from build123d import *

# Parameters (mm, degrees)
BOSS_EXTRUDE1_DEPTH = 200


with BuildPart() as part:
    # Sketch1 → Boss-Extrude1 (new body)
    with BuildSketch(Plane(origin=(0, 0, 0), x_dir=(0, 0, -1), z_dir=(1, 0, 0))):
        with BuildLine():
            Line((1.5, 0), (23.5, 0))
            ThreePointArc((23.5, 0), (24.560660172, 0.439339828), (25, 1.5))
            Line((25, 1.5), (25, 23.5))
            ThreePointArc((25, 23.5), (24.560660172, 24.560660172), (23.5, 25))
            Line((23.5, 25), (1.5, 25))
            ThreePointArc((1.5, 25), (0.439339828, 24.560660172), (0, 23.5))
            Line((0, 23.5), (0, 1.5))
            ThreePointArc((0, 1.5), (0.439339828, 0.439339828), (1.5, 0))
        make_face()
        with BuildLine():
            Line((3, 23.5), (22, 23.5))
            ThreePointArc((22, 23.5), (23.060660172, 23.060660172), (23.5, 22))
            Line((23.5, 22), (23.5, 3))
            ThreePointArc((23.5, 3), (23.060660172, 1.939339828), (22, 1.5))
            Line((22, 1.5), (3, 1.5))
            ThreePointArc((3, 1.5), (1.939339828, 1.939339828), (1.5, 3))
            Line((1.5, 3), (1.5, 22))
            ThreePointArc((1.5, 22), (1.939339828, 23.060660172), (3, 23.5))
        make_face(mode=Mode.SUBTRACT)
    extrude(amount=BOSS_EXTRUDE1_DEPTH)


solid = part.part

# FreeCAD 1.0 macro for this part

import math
import FreeCAD as App
import Part
import Sketcher

V = App.Vector

doc = App.newDocument("Part")
params = doc.addObject("Spreadsheet::Sheet", "Params")
for row, (alias, value) in enumerate([
    ("sketch1_radius", "1.5 mm"),
    ("sketch1_width", "22 mm"),
    ("pad1_length", "200 mm"),
], start=1):
    params.set(f"A{row}", alias)
    params.set(f"B{row}", "=" + value)
    params.setAlias(f"B{row}", alias)

body = doc.addObject("PartDesign::Body", "Body")

# Sketch on YZ plane
sketch1 = doc.addObject("Sketcher::SketchObject", "Sketch")
body.addObject(sketch1)
sketch1.AttachmentSupport = (doc.YZ_Plane, [""])
sketch1.MapMode = "FlatFace"
sketch1.addGeometry([
    Part.LineSegment(V(0, -1.5, 0), V(0, -23.5, 0)),  # 0
    Part.ArcOfCircle(Part.Circle(V(1.5, -23.5, 0), V(0, 0, 1), 1.5), math.radians(180), math.radians(270)),  # 1
    Part.LineSegment(V(1.5, -25, 0), V(23.5, -25, 0)),  # 2
    Part.ArcOfCircle(Part.Circle(V(23.5, -23.5, 0), V(0, 0, 1), 1.5), math.radians(-90), math.radians(0)),  # 3
    Part.LineSegment(V(25, -23.5, 0), V(25, -1.5, 0)),  # 4
    Part.ArcOfCircle(Part.Circle(V(23.5, -1.5, 0), V(0, 0, 1), 1.5), math.radians(0), math.radians(90)),  # 5
    Part.LineSegment(V(23.5, 0, 0), V(1.5, 0, 0)),  # 6
    Part.ArcOfCircle(Part.Circle(V(1.5, -1.5, 0), V(0, 0, 1), 1.5), math.radians(90), math.radians(180)),  # 7
    Part.ArcOfCircle(Part.Circle(V(22, -3, 0), V(0, 0, 1), 1.5), math.radians(0), math.radians(90)),  # 8
    Part.LineSegment(V(23.5, -3, 0), V(23.5, -22, 0)),  # 9
    Part.ArcOfCircle(Part.Circle(V(22, -22, 0), V(0, 0, 1), 1.5), math.radians(-90), math.radians(0)),  # 10
    Part.LineSegment(V(22, -23.5, 0), V(3, -23.5, 0)),  # 11
    Part.ArcOfCircle(Part.Circle(V(3, -22, 0), V(0, 0, 1), 1.5), math.radians(180), math.radians(270)),  # 12
    Part.LineSegment(V(1.5, -22, 0), V(1.5, -3, 0)),  # 13
    Part.ArcOfCircle(Part.Circle(V(3, -3, 0), V(0, 0, 1), 1.5), math.radians(90), math.radians(180)),  # 14
    Part.LineSegment(V(3, -1.5, 0), V(22, -1.5, 0)),  # 15
], False)
sketch1.addConstraint([
    Sketcher.Constraint("Tangent", 0, 2, 1, 1),
    Sketcher.Constraint("Tangent", 1, 2, 2, 1),
    Sketcher.Constraint("Tangent", 2, 2, 3, 1),
    Sketcher.Constraint("Tangent", 3, 2, 4, 1),
    Sketcher.Constraint("Tangent", 4, 2, 5, 1),
    Sketcher.Constraint("Tangent", 5, 2, 6, 1),
    Sketcher.Constraint("Tangent", 6, 2, 7, 1),
    Sketcher.Constraint("Tangent", 7, 2, 0, 1),
    Sketcher.Constraint("Tangent", 8, 1, 9, 1),
    Sketcher.Constraint("Tangent", 9, 2, 10, 2),
    Sketcher.Constraint("Tangent", 10, 1, 11, 1),
    Sketcher.Constraint("Tangent", 11, 2, 12, 2),
    Sketcher.Constraint("Tangent", 12, 1, 13, 1),
    Sketcher.Constraint("Tangent", 13, 2, 14, 2),
    Sketcher.Constraint("Tangent", 14, 1, 15, 1),
    Sketcher.Constraint("Tangent", 15, 2, 8, 2),
    Sketcher.Constraint("Vertical", 0),
    Sketcher.Constraint("Horizontal", 2),
    Sketcher.Constraint("Vertical", 4),
    Sketcher.Constraint("Horizontal", 6),
    Sketcher.Constraint("Vertical", 9),
    Sketcher.Constraint("Horizontal", 11),
    Sketcher.Constraint("Vertical", 13),
    Sketcher.Constraint("Horizontal", 15),
    Sketcher.Constraint("Equal", 1, 3),
    Sketcher.Constraint("Equal", 3, 5),
    Sketcher.Constraint("Equal", 5, 7),
    Sketcher.Constraint("Equal", 7, 8),
    Sketcher.Constraint("Equal", 8, 10),
    Sketcher.Constraint("Equal", 10, 12),
    Sketcher.Constraint("Equal", 12, 14),
    Sketcher.Constraint("PointOnObject", 0, 2, -2),
    Sketcher.Constraint("PointOnObject", 5, 2, -1),
    Sketcher.Constraint("Horizontal", 3, 2, 10, 1),
    Sketcher.Constraint("Horizontal", 7, 2, 14, 1),
    Sketcher.Constraint("Vertical", 5, 2, 8, 1),
    Sketcher.Constraint("Vertical", 6, 2, 12, 1),
    Sketcher.Constraint("Equal", 6, 0),
    Sketcher.Constraint("Radius", 1, 1.5),
    Sketcher.Constraint("DistanceX", 2, 1, 2, 2, 22.0),
])
sketch1.setExpression("Constraints[38]", "Params.sketch1_radius")
sketch1.setExpression("Constraints[39]", "Params.sketch1_width")
pad1 = doc.addObject("PartDesign::Pad", "Pad")
body.addObject(pad1)
pad1.Profile = sketch1
pad1.setExpression("Length", "Params.pad1_length")

doc.recompute()
